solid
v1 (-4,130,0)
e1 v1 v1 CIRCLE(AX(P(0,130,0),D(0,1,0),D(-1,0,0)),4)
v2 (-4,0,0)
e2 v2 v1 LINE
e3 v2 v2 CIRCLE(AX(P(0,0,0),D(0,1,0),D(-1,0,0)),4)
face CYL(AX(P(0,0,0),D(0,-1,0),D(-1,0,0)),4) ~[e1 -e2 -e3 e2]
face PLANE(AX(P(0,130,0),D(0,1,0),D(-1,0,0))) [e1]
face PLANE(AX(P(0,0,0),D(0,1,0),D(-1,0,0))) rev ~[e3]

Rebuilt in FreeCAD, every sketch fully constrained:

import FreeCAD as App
import Part
import Sketcher

V = App.Vector
Q = App.Units.Quantity

doc = App.newDocument("Part")
body = doc.addObject("PartDesign::Body", "Body")

# Sketch on XZ plane
sketch1 = doc.addObject("Sketcher::SketchObject", "Sketch")
body.addObject(sketch1)
sketch1.AttachmentSupport = (doc.XZ_Plane, [""])
sketch1.MapMode = "FlatFace"
sketch1.addGeometry(Part.Circle(V(0, 0, 0), V(0, 0, 1), 4), False)
sketch1.addConstraint(Sketcher.Constraint("Coincident", 0, 3, -1, 1))
sketch1.addConstraint(Sketcher.Constraint("Diameter", 0, Q("8 mm")))
pad1 = doc.addObject("PartDesign::Pad", "Pad")
body.addObject(pad1)
pad1.Profile = sketch1
pad1.Length = 130
pad1.Reversed = True

doc.recompute()
